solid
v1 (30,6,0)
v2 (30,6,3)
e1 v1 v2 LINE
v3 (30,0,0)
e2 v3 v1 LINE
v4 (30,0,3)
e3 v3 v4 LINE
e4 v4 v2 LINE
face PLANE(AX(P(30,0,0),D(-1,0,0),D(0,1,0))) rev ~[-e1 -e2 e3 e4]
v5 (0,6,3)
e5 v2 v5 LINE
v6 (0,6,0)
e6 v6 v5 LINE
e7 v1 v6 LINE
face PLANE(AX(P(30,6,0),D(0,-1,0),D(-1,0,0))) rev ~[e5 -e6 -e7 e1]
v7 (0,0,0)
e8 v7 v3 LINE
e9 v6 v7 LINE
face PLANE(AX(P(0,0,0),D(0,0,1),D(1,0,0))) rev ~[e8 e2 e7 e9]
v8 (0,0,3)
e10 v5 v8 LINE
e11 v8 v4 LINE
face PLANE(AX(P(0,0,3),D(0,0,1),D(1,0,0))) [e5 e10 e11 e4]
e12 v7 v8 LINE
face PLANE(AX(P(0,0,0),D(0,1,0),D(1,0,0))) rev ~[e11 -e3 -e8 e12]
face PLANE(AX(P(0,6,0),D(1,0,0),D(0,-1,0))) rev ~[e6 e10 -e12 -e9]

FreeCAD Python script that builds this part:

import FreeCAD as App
import Part
import Sketcher
Q = App.Units.Quantity


def add_polygon(sketch, points):
    """Adds a closed chain of lines whose ends are joined by coincident constraints."""
    first, n = sketch.GeometryCount, len(points)
    for a, b in zip(points, points[1:] + points[:1]):
        sketch.addGeometry(Part.LineSegment(App.Vector(*a, 0), App.Vector(*b, 0)), False)
    for i in range(n):
        sketch.addConstraint(Sketcher.Constraint("Coincident", first + i, 2, first + (i + 1) % n, 1))

doc = App.newDocument("Part")
body = doc.addObject("PartDesign::Body", "Body")

# Sketch on XY plane
sketch1 = body.newObject("Sketcher::SketchObject", "Sketch")
sketch1.AttachmentSupport = (doc.getObject("XY_Plane"), [""])
sketch1.MapMode = "FlatFace"
add_polygon(sketch1, [(0, 6), (0, 0), (30, 0), (30, 6)])  # lines 0-3
sketch1.addConstraint(Sketcher.Constraint("Vertical", 0))
sketch1.addConstraint(Sketcher.Constraint("Horizontal", 1))
sketch1.addConstraint(Sketcher.Constraint("Vertical", 2))
sketch1.addConstraint(Sketcher.Constraint("Horizontal", 3))
sketch1.addConstraint(Sketcher.Constraint("Coincident", 0, 2, -1, 1))
sketch1.addConstraint(Sketcher.Constraint("DistanceX", 1, 1, 1, 2, Q("30 mm")))
sketch1.addConstraint(Sketcher.Constraint("DistanceY", 0, 2, 0, 1, Q("6 mm")))
pad1 = body.newObject("PartDesign::Pad", "Pad")
pad1.Profile = sketch1
pad1.Length = 3

doc.recompute()
